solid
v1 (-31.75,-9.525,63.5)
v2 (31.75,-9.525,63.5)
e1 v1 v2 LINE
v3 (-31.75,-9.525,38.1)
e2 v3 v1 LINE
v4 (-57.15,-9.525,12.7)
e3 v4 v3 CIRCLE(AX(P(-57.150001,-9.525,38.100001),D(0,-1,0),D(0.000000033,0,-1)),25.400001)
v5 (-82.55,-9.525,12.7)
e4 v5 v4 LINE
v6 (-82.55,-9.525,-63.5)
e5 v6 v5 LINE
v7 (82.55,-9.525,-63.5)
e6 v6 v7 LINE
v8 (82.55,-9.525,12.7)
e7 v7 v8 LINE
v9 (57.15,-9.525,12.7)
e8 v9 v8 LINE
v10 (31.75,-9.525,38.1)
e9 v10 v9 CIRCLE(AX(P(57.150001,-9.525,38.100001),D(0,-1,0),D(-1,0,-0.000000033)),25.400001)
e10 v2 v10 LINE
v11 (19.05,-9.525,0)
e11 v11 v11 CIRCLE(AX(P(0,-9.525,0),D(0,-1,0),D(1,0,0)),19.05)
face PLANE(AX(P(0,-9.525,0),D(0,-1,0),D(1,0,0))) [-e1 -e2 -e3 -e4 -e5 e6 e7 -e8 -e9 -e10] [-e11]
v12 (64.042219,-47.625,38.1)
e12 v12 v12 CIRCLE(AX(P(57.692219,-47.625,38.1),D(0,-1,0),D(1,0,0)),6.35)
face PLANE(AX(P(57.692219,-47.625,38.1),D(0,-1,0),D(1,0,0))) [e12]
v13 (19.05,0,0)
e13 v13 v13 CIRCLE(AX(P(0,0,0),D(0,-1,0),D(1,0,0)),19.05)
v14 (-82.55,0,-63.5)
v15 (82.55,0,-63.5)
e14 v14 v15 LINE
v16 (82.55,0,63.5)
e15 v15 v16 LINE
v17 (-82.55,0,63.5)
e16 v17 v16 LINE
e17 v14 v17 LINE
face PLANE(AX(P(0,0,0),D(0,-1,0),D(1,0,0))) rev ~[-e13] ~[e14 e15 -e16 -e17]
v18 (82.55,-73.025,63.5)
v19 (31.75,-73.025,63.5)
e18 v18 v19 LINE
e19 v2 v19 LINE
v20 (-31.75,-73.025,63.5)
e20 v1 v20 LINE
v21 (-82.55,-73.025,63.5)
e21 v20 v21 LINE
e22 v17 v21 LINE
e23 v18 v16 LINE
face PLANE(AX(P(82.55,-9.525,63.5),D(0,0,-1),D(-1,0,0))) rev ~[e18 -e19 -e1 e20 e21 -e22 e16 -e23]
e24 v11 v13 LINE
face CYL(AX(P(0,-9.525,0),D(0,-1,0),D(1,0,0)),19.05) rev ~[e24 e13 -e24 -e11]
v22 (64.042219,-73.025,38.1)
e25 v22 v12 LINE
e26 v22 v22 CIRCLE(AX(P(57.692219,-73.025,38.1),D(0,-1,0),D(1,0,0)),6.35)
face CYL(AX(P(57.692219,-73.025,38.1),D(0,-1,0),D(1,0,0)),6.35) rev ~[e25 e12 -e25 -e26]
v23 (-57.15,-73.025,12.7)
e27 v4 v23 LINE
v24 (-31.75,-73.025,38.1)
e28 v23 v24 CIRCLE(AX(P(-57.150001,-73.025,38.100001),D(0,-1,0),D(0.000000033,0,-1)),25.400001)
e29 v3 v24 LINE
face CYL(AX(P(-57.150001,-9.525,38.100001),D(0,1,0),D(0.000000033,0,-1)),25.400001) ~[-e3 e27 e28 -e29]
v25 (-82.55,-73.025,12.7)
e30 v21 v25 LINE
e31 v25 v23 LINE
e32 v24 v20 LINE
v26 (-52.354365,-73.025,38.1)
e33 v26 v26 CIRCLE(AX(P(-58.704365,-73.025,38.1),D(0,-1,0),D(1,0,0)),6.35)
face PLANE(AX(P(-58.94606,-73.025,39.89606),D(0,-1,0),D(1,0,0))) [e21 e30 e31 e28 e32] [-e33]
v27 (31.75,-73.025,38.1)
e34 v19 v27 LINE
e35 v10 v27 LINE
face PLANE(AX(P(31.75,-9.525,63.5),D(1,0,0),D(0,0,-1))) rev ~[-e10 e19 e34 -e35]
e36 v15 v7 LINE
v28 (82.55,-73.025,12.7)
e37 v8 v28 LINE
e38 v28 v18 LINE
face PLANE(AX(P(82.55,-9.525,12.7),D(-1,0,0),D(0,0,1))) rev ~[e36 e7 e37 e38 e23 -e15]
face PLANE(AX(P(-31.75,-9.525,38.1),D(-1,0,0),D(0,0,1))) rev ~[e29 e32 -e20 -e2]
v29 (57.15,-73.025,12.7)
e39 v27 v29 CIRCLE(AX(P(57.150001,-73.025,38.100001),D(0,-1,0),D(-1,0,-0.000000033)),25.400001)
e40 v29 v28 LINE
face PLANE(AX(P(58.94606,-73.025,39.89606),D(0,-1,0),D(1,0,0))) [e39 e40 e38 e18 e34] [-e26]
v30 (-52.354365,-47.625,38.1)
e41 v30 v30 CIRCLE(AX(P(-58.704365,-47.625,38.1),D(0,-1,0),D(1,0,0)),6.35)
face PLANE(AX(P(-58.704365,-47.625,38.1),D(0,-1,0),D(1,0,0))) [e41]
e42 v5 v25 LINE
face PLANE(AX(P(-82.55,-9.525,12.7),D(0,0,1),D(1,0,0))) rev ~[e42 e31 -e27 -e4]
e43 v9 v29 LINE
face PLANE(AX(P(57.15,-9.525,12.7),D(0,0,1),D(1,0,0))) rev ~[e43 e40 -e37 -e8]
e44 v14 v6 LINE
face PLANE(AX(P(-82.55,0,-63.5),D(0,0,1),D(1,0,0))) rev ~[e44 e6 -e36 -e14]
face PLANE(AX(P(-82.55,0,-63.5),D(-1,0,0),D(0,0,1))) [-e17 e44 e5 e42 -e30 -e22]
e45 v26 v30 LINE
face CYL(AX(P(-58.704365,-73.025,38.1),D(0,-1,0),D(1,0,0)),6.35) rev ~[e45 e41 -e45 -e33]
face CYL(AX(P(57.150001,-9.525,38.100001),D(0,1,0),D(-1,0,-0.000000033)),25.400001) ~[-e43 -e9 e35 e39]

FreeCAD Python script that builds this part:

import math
import FreeCAD as App
import Part
import Sketcher
Q = App.Units.Quantity

doc = App.newDocument("Part")
body = doc.addObject("PartDesign::Body", "Body")

sketch1 = body.newObject("Sketcher::SketchObject", "Sketch")
sketch1.AttachmentSupport = (doc.getObject("XZ_Plane"), [""])
sketch1.MapMode = "FlatFace"
sketch1.addGeometry(Part.LineSegment(App.Vector(-82.55, 63.5, 0), App.Vector(-82.55, -63.5, 0)), False)
sketch1.addGeometry(Part.LineSegment(App.Vector(-82.55, -63.5, 0), App.Vector(82.55, -63.5, 0)), False)
sketch1.addGeometry(Part.LineSegment(App.Vector(82.55, -63.5, 0), App.Vector(82.55, 63.5, 0)), False)
sketch1.addGeometry(Part.LineSegment(App.Vector(82.55, 63.5, 0), App.Vector(-82.55, 63.5, 0)), False)
sketch1.addConstraint(Sketcher.Constraint("Coincident", 0, 2, 1, 1))
sketch1.addConstraint(Sketcher.Constraint("Coincident", 1, 2, 2, 1))
sketch1.addConstraint(Sketcher.Constraint("Coincident", 2, 2, 3, 1))
sketch1.addConstraint(Sketcher.Constraint("Coincident", 3, 2, 0, 1))
sketch1.addConstraint(Sketcher.Constraint("Vertical", 0))
sketch1.addConstraint(Sketcher.Constraint("Horizontal", 1))
sketch1.addConstraint(Sketcher.Constraint("Vertical", 2))
sketch1.addConstraint(Sketcher.Constraint("Horizontal", 3))
sketch1.addConstraint(Sketcher.Constraint("Symmetric", 0, 2, 2, 2, -1, 1))
sketch1.addConstraint(Sketcher.Constraint("DistanceY", 0, 2, 0, 1, Q("5 in")))
sketch1.addConstraint(Sketcher.Constraint("DistanceX", 1, 1, 1, 2, Q("6.5 in")))
pad1 = body.newObject("PartDesign::Pad", "Pad")
pad1.Profile = sketch1
pad1.Length = Q("0.375 in")

sketch2 = body.newObject("Sketcher::SketchObject", "Sketch001")
sketch2.AttachmentSupport = (doc.getObject("XZ_Plane"), [""])
sketch2.MapMode = "FlatFace"
sketch2.AttachmentOffset = App.Placement(App.Vector(0, 0, 0.375 * 25.4), App.Rotation())
sketch2.addGeometry(Part.LineSegment(App.Vector(82.55, 63.5, 0), App.Vector(31.75, 63.5, 0)), False)
sketch2.addGeometry(Part.LineSegment(App.Vector(31.75, 63.5, 0), App.Vector(31.75, 38.1, 0)), False)
sketch2.addGeometry(Part.ArcOfCircle(Part.Circle(App.Vector(57.150001, 38.100001, 0), App.Vector(0, 0, 1), 25.400001), math.radians(-179.999998), math.radians(-90.000002)), False)
sketch2.addGeometry(Part.LineSegment(App.Vector(57.15, 12.7, 0), App.Vector(82.55, 12.7, 0)), False)
sketch2.addGeometry(Part.LineSegment(App.Vector(82.55, 12.7, 0), App.Vector(82.55, 63.5, 0)), False)
sketch2.addGeometry(Part.LineSegment(App.Vector(-31.75, 63.5, 0), App.Vector(-82.55, 63.5, 0)), False)
sketch2.addGeometry(Part.LineSegment(App.Vector(-82.55, 63.5, 0), App.Vector(-82.55, 12.7, 0)), False)
sketch2.addGeometry(Part.LineSegment(App.Vector(-82.55, 12.7, 0), App.Vector(-57.15, 12.7, 0)), False)
sketch2.addGeometry(Part.ArcOfCircle(Part.Circle(App.Vector(-57.150001, 38.100001, 0), App.Vector(0, 0, 1), 25.400001), math.radians(-89.999998), math.radians(-0.000002)), False)
sketch2.addGeometry(Part.LineSegment(App.Vector(-31.75, 38.1, 0), App.Vector(-31.75, 63.5, 0)), False)
sketch2.addConstraint(Sketcher.Constraint("Coincident", 0, 2, 1, 1))
sketch2.addConstraint(Sketcher.Constraint("Tangent", 1, 2, 2, 1))
sketch2.addConstraint(Sketcher.Constraint("Tangent", 2, 2, 3, 1))
sketch2.addConstraint(Sketcher.Constraint("Coincident", 3, 2, 4, 1))
sketch2.addConstraint(Sketcher.Constraint("Coincident", 4, 2, 0, 1))
sketch2.addConstraint(Sketcher.Constraint("Coincident", 5, 2, 6, 1))
sketch2.addConstraint(Sketcher.Constraint("Coincident", 6, 2, 7, 1))
sketch2.addConstraint(Sketcher.Constraint("Tangent", 7, 2, 8, 1))
sketch2.addConstraint(Sketcher.Constraint("Tangent", 8, 2, 9, 1))
sketch2.addConstraint(Sketcher.Constraint("Coincident", 9, 2, 5, 1))
sketch2.addConstraint(Sketcher.Constraint("Horizontal", 0))
sketch2.addConstraint(Sketcher.Constraint("Vertical", 1))
sketch2.addConstraint(Sketcher.Constraint("Horizontal", 3))
sketch2.addConstraint(Sketcher.Constraint("Vertical", 4))
sketch2.addConstraint(Sketcher.Constraint("Horizontal", 5))
sketch2.addConstraint(Sketcher.Constraint("Vertical", 6))
sketch2.addConstraint(Sketcher.Constraint("Horizontal", 7))
sketch2.addConstraint(Sketcher.Constraint("Vertical", 9))
sketch2.addConstraint(Sketcher.Constraint("Equal", 2, 8))
sketch2.addConstraint(Sketcher.Constraint("Symmetric", 2, 3, 8, 3, -2))
sketch2.addConstraint(Sketcher.Constraint("Symmetric", 4, 2, 5, 2, -2))
sketch2.addConstraint(Sketcher.Constraint("Equal", 7, 1))
sketch2.addConstraint(Sketcher.Constraint("Radius", 2, Q("1 in")))
sketch2.addConstraint(Sketcher.Constraint("DistanceX", 0, 2, 0, 1, Q("2 in")))
sketch2.addConstraint(Sketcher.Constraint("DistanceY", -1, 1, 2, 3, Q("1.5 in")))
sketch2.addConstraint(Sketcher.Constraint("DistanceX", 8, 3, 2, 3, Q("4.5000001 in")))
pad2 = body.newObject("PartDesign::Pad", "Pad001")
pad2.Profile = sketch2
pad2.Length = Q("2.5 in")

sketch3 = body.newObject("Sketcher::SketchObject", "Sketch002")
sketch3.AttachmentSupport = (doc.getObject("XZ_Plane"), [""])
sketch3.MapMode = "FlatFace"
sketch3.AttachmentOffset = App.Placement(App.Vector(0, 0, 0.375 * 25.4), App.Rotation())
sketch3.addGeometry(Part.Circle(App.Vector(0, 0, 0), App.Vector(0, 0, 1), 19.05), False)
sketch3.addConstraint(Sketcher.Constraint("Coincident", 0, 3, -1, 1))
sketch3.addConstraint(Sketcher.Constraint("Diameter", 0, Q("1.5 in")))
pocket1 = body.newObject("PartDesign::Pocket", "Pocket")
pocket1.Profile = sketch3
pocket1.Length = Q("2 in")

sketch4 = body.newObject("Sketcher::SketchObject", "Sketch003")
sketch4.AttachmentSupport = (doc.getObject("XZ_Plane"), [""])
sketch4.MapMode = "FlatFace"
sketch4.AttachmentOffset = App.Placement(App.Vector(0, 0, 2.875 * 25.4), App.Rotation())
sketch4.addGeometry(Part.Circle(App.Vector(-58.704365, 38.1, 0), App.Vector(0, 0, 1), 6.35), False)
sketch4.addConstraint(Sketcher.Constraint("Diameter", 0, Q("0.5 in")))
sketch4.addConstraint(Sketcher.Constraint("DistanceY", -1, 1, 0, 3, Q("1.5 in")))
sketch4.addConstraint(Sketcher.Constraint("DistanceX", 0, 3, -1, 1, 58.704365))
pocket2 = body.newObject("PartDesign::Pocket", "Pocket001")
pocket2.Profile = sketch4
pocket2.Length = Q("1 in")

sketch5 = body.newObject("Sketcher::SketchObject", "Sketch004")
sketch5.AttachmentSupport = (doc.getObject("XZ_Plane"), [""])
sketch5.MapMode = "FlatFace"
sketch5.AttachmentOffset = App.Placement(App.Vector(0, 0, 2.875 * 25.4), App.Rotation())
sketch5.addGeometry(Part.Circle(App.Vector(57.692219, 38.1, 0), App.Vector(0, 0, 1), 6.35), False)
sketch5.addConstraint(Sketcher.Constraint("Diameter", 0, Q("0.5 in")))
sketch5.addConstraint(Sketcher.Constraint("DistanceY", -1, 1, 0, 3, Q("1.5 in")))
sketch5.addConstraint(Sketcher.Constraint("DistanceX", -1, 1, 0, 3, 57.692219))
pocket3 = body.newObject("PartDesign::Pocket", "Pocket002")
pocket3.Profile = sketch5
pocket3.Length = Q("1 in")

doc.recompute()
